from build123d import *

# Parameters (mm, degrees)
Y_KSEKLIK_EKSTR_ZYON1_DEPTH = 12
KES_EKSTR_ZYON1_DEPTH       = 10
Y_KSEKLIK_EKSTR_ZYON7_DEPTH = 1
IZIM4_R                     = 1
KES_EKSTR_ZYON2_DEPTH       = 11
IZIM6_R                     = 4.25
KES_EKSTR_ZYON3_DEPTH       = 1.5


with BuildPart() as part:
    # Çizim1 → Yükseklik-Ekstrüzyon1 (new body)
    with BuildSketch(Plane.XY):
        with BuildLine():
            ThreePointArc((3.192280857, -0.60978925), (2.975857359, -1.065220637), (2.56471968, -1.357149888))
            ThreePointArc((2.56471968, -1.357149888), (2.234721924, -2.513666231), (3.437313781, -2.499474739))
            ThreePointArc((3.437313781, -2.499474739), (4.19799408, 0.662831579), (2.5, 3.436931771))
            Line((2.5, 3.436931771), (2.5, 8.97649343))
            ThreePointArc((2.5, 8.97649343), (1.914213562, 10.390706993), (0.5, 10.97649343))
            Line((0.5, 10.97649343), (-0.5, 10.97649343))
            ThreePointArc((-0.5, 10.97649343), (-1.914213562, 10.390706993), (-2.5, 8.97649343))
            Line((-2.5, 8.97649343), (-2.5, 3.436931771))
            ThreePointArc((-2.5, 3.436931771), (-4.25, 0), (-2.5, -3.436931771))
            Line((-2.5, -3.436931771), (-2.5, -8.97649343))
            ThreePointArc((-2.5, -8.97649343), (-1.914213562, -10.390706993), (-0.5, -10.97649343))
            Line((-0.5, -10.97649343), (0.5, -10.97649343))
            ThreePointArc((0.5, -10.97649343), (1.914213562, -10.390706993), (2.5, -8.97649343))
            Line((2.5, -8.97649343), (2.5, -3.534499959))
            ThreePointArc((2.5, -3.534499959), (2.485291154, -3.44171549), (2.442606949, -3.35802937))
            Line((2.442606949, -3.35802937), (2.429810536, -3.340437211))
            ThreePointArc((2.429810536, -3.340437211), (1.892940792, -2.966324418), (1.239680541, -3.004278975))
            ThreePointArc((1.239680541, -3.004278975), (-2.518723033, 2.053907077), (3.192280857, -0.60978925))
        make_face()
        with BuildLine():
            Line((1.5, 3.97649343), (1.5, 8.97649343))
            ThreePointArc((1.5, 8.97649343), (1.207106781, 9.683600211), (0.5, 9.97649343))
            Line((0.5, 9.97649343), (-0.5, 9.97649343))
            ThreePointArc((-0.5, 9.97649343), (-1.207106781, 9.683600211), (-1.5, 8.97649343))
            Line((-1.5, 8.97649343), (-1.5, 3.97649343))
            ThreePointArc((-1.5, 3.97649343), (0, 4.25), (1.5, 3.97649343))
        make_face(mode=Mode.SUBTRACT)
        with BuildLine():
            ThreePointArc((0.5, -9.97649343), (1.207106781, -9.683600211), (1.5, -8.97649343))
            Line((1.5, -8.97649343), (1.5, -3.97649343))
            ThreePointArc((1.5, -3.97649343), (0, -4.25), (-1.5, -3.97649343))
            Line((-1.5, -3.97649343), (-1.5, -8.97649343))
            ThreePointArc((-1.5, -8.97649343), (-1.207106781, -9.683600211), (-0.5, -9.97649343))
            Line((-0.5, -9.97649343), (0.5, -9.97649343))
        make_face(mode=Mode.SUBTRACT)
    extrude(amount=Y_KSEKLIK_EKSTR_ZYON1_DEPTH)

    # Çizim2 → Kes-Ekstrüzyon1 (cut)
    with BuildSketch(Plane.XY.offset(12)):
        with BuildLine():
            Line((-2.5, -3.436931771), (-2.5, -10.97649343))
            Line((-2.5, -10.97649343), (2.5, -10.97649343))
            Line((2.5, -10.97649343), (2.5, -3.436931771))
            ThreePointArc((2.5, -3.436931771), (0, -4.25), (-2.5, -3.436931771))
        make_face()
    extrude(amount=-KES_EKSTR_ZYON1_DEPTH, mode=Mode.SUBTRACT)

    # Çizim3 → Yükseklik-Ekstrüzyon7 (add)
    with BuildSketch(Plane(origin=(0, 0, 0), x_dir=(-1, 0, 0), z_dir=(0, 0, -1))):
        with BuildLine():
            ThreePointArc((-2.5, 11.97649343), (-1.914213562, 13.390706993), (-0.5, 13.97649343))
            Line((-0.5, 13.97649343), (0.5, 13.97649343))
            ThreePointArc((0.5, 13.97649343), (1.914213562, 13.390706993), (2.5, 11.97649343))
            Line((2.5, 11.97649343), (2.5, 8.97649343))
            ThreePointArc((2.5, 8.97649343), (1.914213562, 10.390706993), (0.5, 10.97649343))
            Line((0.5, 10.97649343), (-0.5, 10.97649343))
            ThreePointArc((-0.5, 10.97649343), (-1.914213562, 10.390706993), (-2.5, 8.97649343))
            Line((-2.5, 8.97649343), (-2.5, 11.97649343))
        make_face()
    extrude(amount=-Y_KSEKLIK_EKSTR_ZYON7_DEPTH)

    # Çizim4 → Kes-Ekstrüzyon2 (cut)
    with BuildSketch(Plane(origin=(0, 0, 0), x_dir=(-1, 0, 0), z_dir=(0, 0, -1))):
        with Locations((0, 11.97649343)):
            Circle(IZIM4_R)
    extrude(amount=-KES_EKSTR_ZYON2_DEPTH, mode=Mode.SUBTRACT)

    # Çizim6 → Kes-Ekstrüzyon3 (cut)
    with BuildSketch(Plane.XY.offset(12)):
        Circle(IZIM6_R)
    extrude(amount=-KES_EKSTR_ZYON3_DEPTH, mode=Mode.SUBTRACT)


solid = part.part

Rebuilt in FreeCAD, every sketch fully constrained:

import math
import FreeCAD as App
import Part
import Sketcher

doc = App.newDocument("Part")
body = doc.addObject("PartDesign::Body", "Body")

# Sketch on XY plane
sketch1 = body.newObject("Sketcher::SketchObject", "Sketch")
sketch1.AttachmentSupport = (doc.getObject("XY_Plane"), [""])
sketch1.MapMode = "FlatFace"
sketch1.addGeometry([
    Part.ArcOfCircle(Part.Circle(App.Vector(2.210041, -0.422162, 0), App.Vector(0, 0, 1), 1), math.radians(-69.226222), math.radians(-10.814358)),  # 0
    Part.ArcOfCircle(Part.Circle(App.Vector(2.830729, -2.058391, 0), App.Vector(0, 0, 1), 0.75), math.radians(110.773778), math.radians(323.976877)),  # 1
    Part.ArcOfCircle(Part.Circle(App.Vector(0, 0, 0), App.Vector(0, 0, 1), 4.25), math.radians(-36.023123), math.radians(53.968121)),  # 2
    Part.LineSegment(App.Vector(2.5, 3.436932, 0), App.Vector(2.5, 8.976493, 0)),  # 3
    Part.ArcOfCircle(Part.Circle(App.Vector(0.5, 8.976493, 0), App.Vector(0, 0, 1), 2), math.radians(0), math.radians(90)),  # 4
    Part.LineSegment(App.Vector(0.5, 10.976493, 0), App.Vector(-0.5, 10.976493, 0)),  # 5
    Part.ArcOfCircle(Part.Circle(App.Vector(-0.5, 8.976493, 0), App.Vector(0, 0, 1), 2), math.radians(90), math.radians(180)),  # 6
    Part.LineSegment(App.Vector(-2.5, 8.976493, 0), App.Vector(-2.5, 3.436932, 0)),  # 7
    Part.ArcOfCircle(Part.Circle(App.Vector(0, 0, 0), App.Vector(0, 0, 1), 4.25), math.radians(126.031879), math.radians(233.968121)),  # 8
    Part.LineSegment(App.Vector(-2.5, -3.436932, 0), App.Vector(-2.5, -8.976493, 0)),  # 9
    Part.ArcOfCircle(Part.Circle(App.Vector(-0.5, -8.976493, 0), App.Vector(0, 0, 1), 2), math.radians(180), math.radians(270)),  # 10
    Part.LineSegment(App.Vector(-0.5, -10.976493, 0), App.Vector(0.5, -10.976493, 0)),  # 11
    Part.ArcOfCircle(Part.Circle(App.Vector(0.5, -8.976493, 0), App.Vector(0, 0, 1), 2), math.radians(-90), math.radians(0)),  # 12
    Part.LineSegment(App.Vector(2.5, -8.976493, 0), App.Vector(2.5, -3.5345, 0)),  # 13
    Part.ArcOfCircle(Part.Circle(App.Vector(2.2, -3.5345, 0), App.Vector(0, 0, 1), 0.3), math.radians(0), math.radians(36.031879)),  # 14
    Part.LineSegment(App.Vector(2.442607, -3.358029, 0), App.Vector(2.429811, -3.340437, 0)),  # 15
    Part.ArcOfCircle(Part.Circle(App.Vector(1.621121, -3.928673, 0), App.Vector(0, 0, 1), 1), math.radians(36.031879), math.radians(112.422918)),  # 16
    Part.ArcOfCircle(Part.Circle(App.Vector(0, 0, 0), App.Vector(0, 0, 1), 3.25), math.radians(-10.814358), math.radians(292.422918)),  # 17
    Part.ArcOfCircle(Part.Circle(App.Vector(0.5, -8.976493, 0), App.Vector(0, 0, 1), 1), math.radians(-90), math.radians(0)),  # 18
    Part.LineSegment(App.Vector(0.5, -9.976493, 0), App.Vector(-0.5, -9.976493, 0)),  # 19
    Part.ArcOfCircle(Part.Circle(App.Vector(-0.5, -8.976493, 0), App.Vector(0, 0, 1), 1), math.radians(-180), math.radians(-90)),  # 20
    Part.LineSegment(App.Vector(-1.5, -8.976493, 0), App.Vector(-1.5, -3.976493, 0)),  # 21
    Part.ArcOfCircle(Part.Circle(App.Vector(0, 0, 0), App.Vector(0, 0, 1), 4.25), math.radians(-110.667317), math.radians(-69.332683)),  # 22
    Part.LineSegment(App.Vector(1.5, -3.976493, 0), App.Vector(1.5, -8.976493, 0)),  # 23
    Part.LineSegment(App.Vector(1.5, 8.976493, 0), App.Vector(1.5, 3.976493, 0)),  # 24
    Part.ArcOfCircle(Part.Circle(App.Vector(0, 0, 0), App.Vector(0, 0, 1), 4.25), math.radians(69.332683), math.radians(110.667317)),  # 25
    Part.LineSegment(App.Vector(-1.5, 3.976493, 0), App.Vector(-1.5, 8.976493, 0)),  # 26
    Part.ArcOfCircle(Part.Circle(App.Vector(-0.5, 8.976493, 0), App.Vector(0, 0, 1), 1), math.radians(90), math.radians(180)),  # 27
    Part.LineSegment(App.Vector(-0.5, 9.976493, 0), App.Vector(0.5, 9.976493, 0)),  # 28
    Part.ArcOfCircle(Part.Circle(App.Vector(0.5, 8.976493, 0), App.Vector(0, 0, 1), 1), math.radians(0), math.radians(90)),  # 29
], False)
sketch1.addConstraint([
    Sketcher.Constraint("Coincident", 0, 1, 1, 1),
    Sketcher.Constraint("Coincident", 1, 2, 2, 1),
    Sketcher.Constraint("Coincident", 2, 2, 3, 1),
    Sketcher.Constraint("Coincident", 3, 2, 4, 1),
    Sketcher.Constraint("Coincident", 4, 2, 5, 1),
    Sketcher.Constraint("Coincident", 5, 2, 6, 1),
    Sketcher.Constraint("Coincident", 6, 2, 7, 1),
    Sketcher.Constraint("Coincident", 7, 2, 8, 1),
    Sketcher.Constraint("Coincident", 8, 2, 9, 1),
    Sketcher.Constraint("Coincident", 9, 2, 10, 1),
    Sketcher.Constraint("Coincident", 10, 2, 11, 1),
    Sketcher.Constraint("Coincident", 11, 2, 12, 1),
    Sketcher.Constraint("Coincident", 12, 2, 13, 1),
    Sketcher.Constraint("Coincident", 13, 2, 14, 1),
    Sketcher.Constraint("Coincident", 14, 2, 15, 1),
    Sketcher.Constraint("Coincident", 15, 2, 16, 1),
    Sketcher.Constraint("Coincident", 16, 2, 17, 2),
    Sketcher.Constraint("Coincident", 17, 1, 0, 2),
    Sketcher.Constraint("Coincident", 18, 1, 19, 1),
    Sketcher.Constraint("Coincident", 19, 2, 20, 2),
    Sketcher.Constraint("Coincident", 20, 1, 21, 1),
    Sketcher.Constraint("Coincident", 21, 2, 22, 1),
    Sketcher.Constraint("Coincident", 22, 2, 23, 1),
    Sketcher.Constraint("Coincident", 23, 2, 18, 2),
    Sketcher.Constraint("Coincident", 24, 2, 25, 1),
    Sketcher.Constraint("Coincident", 25, 2, 26, 1),
    Sketcher.Constraint("Coincident", 26, 2, 27, 2),
    Sketcher.Constraint("Coincident", 27, 1, 28, 1),
    Sketcher.Constraint("Coincident", 28, 2, 29, 2),
    Sketcher.Constraint("Coincident", 29, 1, 24, 1),
    Sketcher.Constraint("Vertical", 3),
    Sketcher.Constraint("Horizontal", 5),
    Sketcher.Constraint("Vertical", 7),
    Sketcher.Constraint("Vertical", 9),
    Sketcher.Constraint("Horizontal", 11),
    Sketcher.Constraint("Vertical", 13),
    Sketcher.Constraint("Horizontal", 19),
    Sketcher.Constraint("Vertical", 21),
    Sketcher.Constraint("Vertical", 23),
    Sketcher.Constraint("Vertical", 24),
    Sketcher.Constraint("Vertical", 26),
    Sketcher.Constraint("Horizontal", 28),
    Sketcher.Constraint("Coincident", 2, 3, -1, 1),
    Sketcher.Constraint("Coincident", 8, 3, -1, 1),
    Sketcher.Constraint("Coincident", 17, 3, -1, 1),
    Sketcher.Constraint("Coincident", 22, 3, -1, 1),
    Sketcher.Constraint("Coincident", 25, 3, -1, 1),
    Sketcher.Constraint("Coincident", 18, 3, 12, 3),
    Sketcher.Constraint("Coincident", 20, 3, 10, 3),
    Sketcher.Constraint("Coincident", 27, 3, 6, 3),
    Sketcher.Constraint("Coincident", 29, 3, 4, 3),
    Sketcher.Constraint("Radius", 0, 1.0),
    Sketcher.Constraint("Radius", 4, 2.0),
    Sketcher.Constraint("Radius", 6, 2.0),
    Sketcher.Constraint("Radius", 10, 2.0),
    Sketcher.Constraint("Radius", 12, 2.0),
    Sketcher.Constraint("Radius", 16, 1.0),
    Sketcher.Constraint("Radius", 18, 1.0),
    Sketcher.Constraint("Radius", 27, 1.0),
    Sketcher.Constraint("Radius", 14, 0.3),
    Sketcher.Constraint("DistanceX", 5, 2, 5, 1, 1.0),
    Sketcher.Constraint("DistanceX", 11, 1, 11, 2, 1.0),
    Sketcher.Constraint("DistanceX", 19, 2, 19, 1, 1.0),
    Sketcher.Constraint("DistanceX", 28, 1, 28, 2, 1.0),
    Sketcher.Constraint("DistanceY", 21, 1, 21, 2, 5.0),
    Sketcher.Constraint("DistanceY", 23, 2, 23, 1, 5.0),
    Sketcher.Constraint("DistanceY", 24, 2, 24, 1, 5.0),
    Sketcher.Constraint("DistanceY", 26, 1, 26, 2, 5.0),
    Sketcher.Constraint("Radius", 1, 0.75),
    Sketcher.Constraint("Radius", 2, 4.25),
    Sketcher.Constraint("Radius", 8, 4.25),
    Sketcher.Constraint("Radius", 17, 3.25),
    Sketcher.Constraint("Radius", 22, 4.25),
    Sketcher.Constraint("Radius", 25, 4.25),
    Sketcher.Constraint("DistanceX", 6, 3, 4, 3, 1.0),
    Sketcher.Constraint("DistanceX", 10, 3, 12, 3, 1.0),
    Sketcher.Constraint("DistanceX", 6, 3, 4, 2, 1.0),
    Sketcher.Constraint("DistanceY", 3, 2, 4, 2, 2.0),
    Sketcher.Constraint("DistanceY", 6, 2, 5, 2, 2.0),
    Sketcher.Constraint("DistanceX", 10, 2, 12, 3, 1.0),
    Sketcher.Constraint("DistanceY", 10, 2, 9, 2, 2.0),
    Sketcher.Constraint("DistanceY", 11, 2, 12, 2, 2.0),
    Sketcher.Constraint("DistanceX", 10, 3, 18, 1, 1.0),
    Sketcher.Constraint("DistanceY", 19, 2, 20, 1, 1.0),
    Sketcher.Constraint("DistanceY", 18, 1, 23, 2, 1.0),
    Sketcher.Constraint("DistanceX", 27, 1, 4, 3, 1.0),
    Sketcher.Constraint("DistanceY", 29, 1, 28, 2, 1.0),
    Sketcher.Constraint("DistanceX", -1, 1, 4, 3, 0.5),
    Sketcher.Constraint("DistanceY", 14, 3, -1, 1, 3.5345),
    Sketcher.Constraint("DistanceY", 13, 2, -1, 1, 3.5345),
    Sketcher.Constraint("DistanceX", 16, 3, 0, 1, 0.943599),
    Sketcher.Constraint("DistanceY", 1, 3, 17, 1, 1.448602),
    Sketcher.Constraint("DistanceX", -1, 1, 0, 3, 2.210041),
    Sketcher.Constraint("DistanceX", -1, 1, 16, 3, 1.621121),
    Sketcher.Constraint("DistanceY", 14, 2, -1, 1, 3.358029),
    Sketcher.Constraint("DistanceX", -1, 1, 15, 2, 2.429811),
    Sketcher.Constraint("DistanceX", -1, 1, 16, 2, 1.239681),
    Sketcher.Constraint("DistanceX", -1, 1, 1, 2, 3.437314),
])
pad1 = body.newObject("PartDesign::Pad", "Pad")
pad1.Profile = sketch1
pad1.Length = 12

# Sketch on XY plane
sketch2 = body.newObject("Sketcher::SketchObject", "Sketch001")
sketch2.AttachmentSupport = (doc.getObject("XY_Plane"), [""])
sketch2.MapMode = "FlatFace"
sketch2.AttachmentOffset = App.Placement(App.Vector(0, 0, 12), App.Rotation())
sketch2.addGeometry([
    Part.LineSegment(App.Vector(-2.5, -3.4, 0), App.Vector(-2.5, -11, 0)),
    Part.LineSegment(App.Vector(-2.5, -11, 0), App.Vector(2.5, -11, 0)),
    Part.LineSegment(App.Vector(2.5, -11, 0), App.Vector(2.5, -3.4, 0)),
    Part.ArcOfCircle(Part.Circle(App.Vector(0, 0, 0), App.Vector(0, 0, 1), 4.2), math.radians(-126), math.radians(-54)),
], False)
sketch2.addConstraint([
    Sketcher.Constraint("Coincident", 0, 2, 1, 1),
    Sketcher.Constraint("Coincident", 1, 2, 2, 1),
    Sketcher.Constraint("Coincident", 2, 2, 3, 2),
    Sketcher.Constraint("Coincident", 3, 1, 0, 1),
    Sketcher.Constraint("Vertical", 0),
    Sketcher.Constraint("Horizontal", 1),
    Sketcher.Constraint("Vertical", 2),
    Sketcher.Constraint("Coincident", 3, 3, -1, 1),
    Sketcher.Constraint("Horizontal", 2, 2, 3, 1),
    Sketcher.Constraint("DistanceX", 1, 1, 1, 2, 5.0),
    Sketcher.Constraint("Radius", 3, 4.25),
    Sketcher.Constraint("DistanceY", 0, 2, 0, 1, 7.539562),
])
pocket1 = body.newObject("PartDesign::Pocket", "Pocket")
pocket1.Profile = sketch2
pocket1.Length = 10

# Sketch on XY plane
sketch3 = body.newObject("Sketcher::SketchObject", "Sketch002")
sketch3.AttachmentSupport = (doc.getObject("XY_Plane"), [""])
sketch3.MapMode = "FlatFace"
sketch3.addGeometry([
    Part.ArcOfCircle(Part.Circle(App.Vector(0.5, 12, 0), App.Vector(0, 0, 1), 2), math.radians(0), math.radians(90)),  # 0
    Part.LineSegment(App.Vector(2.5, 12, 0), App.Vector(2.5, 9, 0)),  # 1
    Part.ArcOfCircle(Part.Circle(App.Vector(0.5, 9, 0), App.Vector(0, 0, 1), 2), math.radians(0), math.radians(90)),  # 2
    Part.LineSegment(App.Vector(0.5, 11, 0), App.Vector(-0.5, 11, 0)),  # 3
    Part.ArcOfCircle(Part.Circle(App.Vector(-0.5, 9, 0), App.Vector(0, 0, 1), 2), math.radians(90), math.radians(180)),  # 4
    Part.LineSegment(App.Vector(-2.5, 9, 0), App.Vector(-2.5, 12, 0)),  # 5
    Part.ArcOfCircle(Part.Circle(App.Vector(-0.5, 12, 0), App.Vector(0, 0, 1), 2), math.radians(90), math.radians(180)),  # 6
    Part.LineSegment(App.Vector(-0.5, 14, 0), App.Vector(0.5, 14, 0)),  # 7
], False)
sketch3.addConstraint([
    Sketcher.Constraint("Tangent", 0, 1, 1, 1),
    Sketcher.Constraint("Tangent", 1, 2, 2, 1),
    Sketcher.Constraint("Tangent", 2, 2, 3, 1),
    Sketcher.Constraint("Tangent", 3, 2, 4, 1),
    Sketcher.Constraint("Tangent", 4, 2, 5, 1),
    Sketcher.Constraint("Tangent", 5, 2, 6, 2),
    Sketcher.Constraint("Tangent", 6, 1, 7, 1),
    Sketcher.Constraint("Tangent", 7, 2, 0, 2),
    Sketcher.Constraint("Vertical", 1),
    Sketcher.Constraint("Horizontal", 3),
    Sketcher.Constraint("Vertical", 5),
    Sketcher.Constraint("Horizontal", 7),
    Sketcher.Constraint("Equal", 0, 2),
    Sketcher.Constraint("Equal", 2, 4),
    Sketcher.Constraint("Equal", 4, 6),
    Sketcher.Constraint("Radius", 0, 2.0),
    Sketcher.Constraint("DistanceX", 3, 2, 3, 1, 1.0),
    Sketcher.Constraint("DistanceY", 1, 2, 1, 1, 3.0),
    Sketcher.Constraint("DistanceX", -1, 1, 0, 3, 0.5),
    Sketcher.Constraint("DistanceY", -1, 1, 0, 3, 11.976493),
])
pad2 = body.newObject("PartDesign::Pad", "Pad001")
pad2.Profile = sketch3
pad2.Length = 1

# Sketch on XY plane
sketch4 = body.newObject("Sketcher::SketchObject", "Sketch003")
sketch4.AttachmentSupport = (doc.getObject("XY_Plane"), [""])
sketch4.MapMode = "FlatFace"
sketch4.addGeometry(Part.Circle(App.Vector(0, 12, 0), App.Vector(0, 0, 1), 1), False)
sketch4.addConstraint([
    Sketcher.Constraint("PointOnObject", 0, 3, -2),
    Sketcher.Constraint("Diameter", 0, 2.0),
    Sketcher.Constraint("DistanceY", -1, 1, 0, 3, 11.976493),
])
pocket2 = body.newObject("PartDesign::Pocket", "Pocket001")
pocket2.Profile = sketch4
pocket2.Length = 11
pocket2.Reversed = True

# Sketch on XY plane
sketch5 = body.newObject("Sketcher::SketchObject", "Sketch004")
sketch5.AttachmentSupport = (doc.getObject("XY_Plane"), [""])
sketch5.MapMode = "FlatFace"
sketch5.AttachmentOffset = App.Placement(App.Vector(0, 0, 12), App.Rotation())
sketch5.addGeometry(Part.Circle(App.Vector(0, 0, 0), App.Vector(0, 0, 1), 4.2), False)
sketch5.addConstraint([
    Sketcher.Constraint("Coincident", 0, 3, -1, 1),
    Sketcher.Constraint("Diameter", 0, 8.5),
])
pocket3 = body.newObject("PartDesign::Pocket", "Pocket002")
pocket3.Profile = sketch5
pocket3.Length = 1.5

doc.recompute()
